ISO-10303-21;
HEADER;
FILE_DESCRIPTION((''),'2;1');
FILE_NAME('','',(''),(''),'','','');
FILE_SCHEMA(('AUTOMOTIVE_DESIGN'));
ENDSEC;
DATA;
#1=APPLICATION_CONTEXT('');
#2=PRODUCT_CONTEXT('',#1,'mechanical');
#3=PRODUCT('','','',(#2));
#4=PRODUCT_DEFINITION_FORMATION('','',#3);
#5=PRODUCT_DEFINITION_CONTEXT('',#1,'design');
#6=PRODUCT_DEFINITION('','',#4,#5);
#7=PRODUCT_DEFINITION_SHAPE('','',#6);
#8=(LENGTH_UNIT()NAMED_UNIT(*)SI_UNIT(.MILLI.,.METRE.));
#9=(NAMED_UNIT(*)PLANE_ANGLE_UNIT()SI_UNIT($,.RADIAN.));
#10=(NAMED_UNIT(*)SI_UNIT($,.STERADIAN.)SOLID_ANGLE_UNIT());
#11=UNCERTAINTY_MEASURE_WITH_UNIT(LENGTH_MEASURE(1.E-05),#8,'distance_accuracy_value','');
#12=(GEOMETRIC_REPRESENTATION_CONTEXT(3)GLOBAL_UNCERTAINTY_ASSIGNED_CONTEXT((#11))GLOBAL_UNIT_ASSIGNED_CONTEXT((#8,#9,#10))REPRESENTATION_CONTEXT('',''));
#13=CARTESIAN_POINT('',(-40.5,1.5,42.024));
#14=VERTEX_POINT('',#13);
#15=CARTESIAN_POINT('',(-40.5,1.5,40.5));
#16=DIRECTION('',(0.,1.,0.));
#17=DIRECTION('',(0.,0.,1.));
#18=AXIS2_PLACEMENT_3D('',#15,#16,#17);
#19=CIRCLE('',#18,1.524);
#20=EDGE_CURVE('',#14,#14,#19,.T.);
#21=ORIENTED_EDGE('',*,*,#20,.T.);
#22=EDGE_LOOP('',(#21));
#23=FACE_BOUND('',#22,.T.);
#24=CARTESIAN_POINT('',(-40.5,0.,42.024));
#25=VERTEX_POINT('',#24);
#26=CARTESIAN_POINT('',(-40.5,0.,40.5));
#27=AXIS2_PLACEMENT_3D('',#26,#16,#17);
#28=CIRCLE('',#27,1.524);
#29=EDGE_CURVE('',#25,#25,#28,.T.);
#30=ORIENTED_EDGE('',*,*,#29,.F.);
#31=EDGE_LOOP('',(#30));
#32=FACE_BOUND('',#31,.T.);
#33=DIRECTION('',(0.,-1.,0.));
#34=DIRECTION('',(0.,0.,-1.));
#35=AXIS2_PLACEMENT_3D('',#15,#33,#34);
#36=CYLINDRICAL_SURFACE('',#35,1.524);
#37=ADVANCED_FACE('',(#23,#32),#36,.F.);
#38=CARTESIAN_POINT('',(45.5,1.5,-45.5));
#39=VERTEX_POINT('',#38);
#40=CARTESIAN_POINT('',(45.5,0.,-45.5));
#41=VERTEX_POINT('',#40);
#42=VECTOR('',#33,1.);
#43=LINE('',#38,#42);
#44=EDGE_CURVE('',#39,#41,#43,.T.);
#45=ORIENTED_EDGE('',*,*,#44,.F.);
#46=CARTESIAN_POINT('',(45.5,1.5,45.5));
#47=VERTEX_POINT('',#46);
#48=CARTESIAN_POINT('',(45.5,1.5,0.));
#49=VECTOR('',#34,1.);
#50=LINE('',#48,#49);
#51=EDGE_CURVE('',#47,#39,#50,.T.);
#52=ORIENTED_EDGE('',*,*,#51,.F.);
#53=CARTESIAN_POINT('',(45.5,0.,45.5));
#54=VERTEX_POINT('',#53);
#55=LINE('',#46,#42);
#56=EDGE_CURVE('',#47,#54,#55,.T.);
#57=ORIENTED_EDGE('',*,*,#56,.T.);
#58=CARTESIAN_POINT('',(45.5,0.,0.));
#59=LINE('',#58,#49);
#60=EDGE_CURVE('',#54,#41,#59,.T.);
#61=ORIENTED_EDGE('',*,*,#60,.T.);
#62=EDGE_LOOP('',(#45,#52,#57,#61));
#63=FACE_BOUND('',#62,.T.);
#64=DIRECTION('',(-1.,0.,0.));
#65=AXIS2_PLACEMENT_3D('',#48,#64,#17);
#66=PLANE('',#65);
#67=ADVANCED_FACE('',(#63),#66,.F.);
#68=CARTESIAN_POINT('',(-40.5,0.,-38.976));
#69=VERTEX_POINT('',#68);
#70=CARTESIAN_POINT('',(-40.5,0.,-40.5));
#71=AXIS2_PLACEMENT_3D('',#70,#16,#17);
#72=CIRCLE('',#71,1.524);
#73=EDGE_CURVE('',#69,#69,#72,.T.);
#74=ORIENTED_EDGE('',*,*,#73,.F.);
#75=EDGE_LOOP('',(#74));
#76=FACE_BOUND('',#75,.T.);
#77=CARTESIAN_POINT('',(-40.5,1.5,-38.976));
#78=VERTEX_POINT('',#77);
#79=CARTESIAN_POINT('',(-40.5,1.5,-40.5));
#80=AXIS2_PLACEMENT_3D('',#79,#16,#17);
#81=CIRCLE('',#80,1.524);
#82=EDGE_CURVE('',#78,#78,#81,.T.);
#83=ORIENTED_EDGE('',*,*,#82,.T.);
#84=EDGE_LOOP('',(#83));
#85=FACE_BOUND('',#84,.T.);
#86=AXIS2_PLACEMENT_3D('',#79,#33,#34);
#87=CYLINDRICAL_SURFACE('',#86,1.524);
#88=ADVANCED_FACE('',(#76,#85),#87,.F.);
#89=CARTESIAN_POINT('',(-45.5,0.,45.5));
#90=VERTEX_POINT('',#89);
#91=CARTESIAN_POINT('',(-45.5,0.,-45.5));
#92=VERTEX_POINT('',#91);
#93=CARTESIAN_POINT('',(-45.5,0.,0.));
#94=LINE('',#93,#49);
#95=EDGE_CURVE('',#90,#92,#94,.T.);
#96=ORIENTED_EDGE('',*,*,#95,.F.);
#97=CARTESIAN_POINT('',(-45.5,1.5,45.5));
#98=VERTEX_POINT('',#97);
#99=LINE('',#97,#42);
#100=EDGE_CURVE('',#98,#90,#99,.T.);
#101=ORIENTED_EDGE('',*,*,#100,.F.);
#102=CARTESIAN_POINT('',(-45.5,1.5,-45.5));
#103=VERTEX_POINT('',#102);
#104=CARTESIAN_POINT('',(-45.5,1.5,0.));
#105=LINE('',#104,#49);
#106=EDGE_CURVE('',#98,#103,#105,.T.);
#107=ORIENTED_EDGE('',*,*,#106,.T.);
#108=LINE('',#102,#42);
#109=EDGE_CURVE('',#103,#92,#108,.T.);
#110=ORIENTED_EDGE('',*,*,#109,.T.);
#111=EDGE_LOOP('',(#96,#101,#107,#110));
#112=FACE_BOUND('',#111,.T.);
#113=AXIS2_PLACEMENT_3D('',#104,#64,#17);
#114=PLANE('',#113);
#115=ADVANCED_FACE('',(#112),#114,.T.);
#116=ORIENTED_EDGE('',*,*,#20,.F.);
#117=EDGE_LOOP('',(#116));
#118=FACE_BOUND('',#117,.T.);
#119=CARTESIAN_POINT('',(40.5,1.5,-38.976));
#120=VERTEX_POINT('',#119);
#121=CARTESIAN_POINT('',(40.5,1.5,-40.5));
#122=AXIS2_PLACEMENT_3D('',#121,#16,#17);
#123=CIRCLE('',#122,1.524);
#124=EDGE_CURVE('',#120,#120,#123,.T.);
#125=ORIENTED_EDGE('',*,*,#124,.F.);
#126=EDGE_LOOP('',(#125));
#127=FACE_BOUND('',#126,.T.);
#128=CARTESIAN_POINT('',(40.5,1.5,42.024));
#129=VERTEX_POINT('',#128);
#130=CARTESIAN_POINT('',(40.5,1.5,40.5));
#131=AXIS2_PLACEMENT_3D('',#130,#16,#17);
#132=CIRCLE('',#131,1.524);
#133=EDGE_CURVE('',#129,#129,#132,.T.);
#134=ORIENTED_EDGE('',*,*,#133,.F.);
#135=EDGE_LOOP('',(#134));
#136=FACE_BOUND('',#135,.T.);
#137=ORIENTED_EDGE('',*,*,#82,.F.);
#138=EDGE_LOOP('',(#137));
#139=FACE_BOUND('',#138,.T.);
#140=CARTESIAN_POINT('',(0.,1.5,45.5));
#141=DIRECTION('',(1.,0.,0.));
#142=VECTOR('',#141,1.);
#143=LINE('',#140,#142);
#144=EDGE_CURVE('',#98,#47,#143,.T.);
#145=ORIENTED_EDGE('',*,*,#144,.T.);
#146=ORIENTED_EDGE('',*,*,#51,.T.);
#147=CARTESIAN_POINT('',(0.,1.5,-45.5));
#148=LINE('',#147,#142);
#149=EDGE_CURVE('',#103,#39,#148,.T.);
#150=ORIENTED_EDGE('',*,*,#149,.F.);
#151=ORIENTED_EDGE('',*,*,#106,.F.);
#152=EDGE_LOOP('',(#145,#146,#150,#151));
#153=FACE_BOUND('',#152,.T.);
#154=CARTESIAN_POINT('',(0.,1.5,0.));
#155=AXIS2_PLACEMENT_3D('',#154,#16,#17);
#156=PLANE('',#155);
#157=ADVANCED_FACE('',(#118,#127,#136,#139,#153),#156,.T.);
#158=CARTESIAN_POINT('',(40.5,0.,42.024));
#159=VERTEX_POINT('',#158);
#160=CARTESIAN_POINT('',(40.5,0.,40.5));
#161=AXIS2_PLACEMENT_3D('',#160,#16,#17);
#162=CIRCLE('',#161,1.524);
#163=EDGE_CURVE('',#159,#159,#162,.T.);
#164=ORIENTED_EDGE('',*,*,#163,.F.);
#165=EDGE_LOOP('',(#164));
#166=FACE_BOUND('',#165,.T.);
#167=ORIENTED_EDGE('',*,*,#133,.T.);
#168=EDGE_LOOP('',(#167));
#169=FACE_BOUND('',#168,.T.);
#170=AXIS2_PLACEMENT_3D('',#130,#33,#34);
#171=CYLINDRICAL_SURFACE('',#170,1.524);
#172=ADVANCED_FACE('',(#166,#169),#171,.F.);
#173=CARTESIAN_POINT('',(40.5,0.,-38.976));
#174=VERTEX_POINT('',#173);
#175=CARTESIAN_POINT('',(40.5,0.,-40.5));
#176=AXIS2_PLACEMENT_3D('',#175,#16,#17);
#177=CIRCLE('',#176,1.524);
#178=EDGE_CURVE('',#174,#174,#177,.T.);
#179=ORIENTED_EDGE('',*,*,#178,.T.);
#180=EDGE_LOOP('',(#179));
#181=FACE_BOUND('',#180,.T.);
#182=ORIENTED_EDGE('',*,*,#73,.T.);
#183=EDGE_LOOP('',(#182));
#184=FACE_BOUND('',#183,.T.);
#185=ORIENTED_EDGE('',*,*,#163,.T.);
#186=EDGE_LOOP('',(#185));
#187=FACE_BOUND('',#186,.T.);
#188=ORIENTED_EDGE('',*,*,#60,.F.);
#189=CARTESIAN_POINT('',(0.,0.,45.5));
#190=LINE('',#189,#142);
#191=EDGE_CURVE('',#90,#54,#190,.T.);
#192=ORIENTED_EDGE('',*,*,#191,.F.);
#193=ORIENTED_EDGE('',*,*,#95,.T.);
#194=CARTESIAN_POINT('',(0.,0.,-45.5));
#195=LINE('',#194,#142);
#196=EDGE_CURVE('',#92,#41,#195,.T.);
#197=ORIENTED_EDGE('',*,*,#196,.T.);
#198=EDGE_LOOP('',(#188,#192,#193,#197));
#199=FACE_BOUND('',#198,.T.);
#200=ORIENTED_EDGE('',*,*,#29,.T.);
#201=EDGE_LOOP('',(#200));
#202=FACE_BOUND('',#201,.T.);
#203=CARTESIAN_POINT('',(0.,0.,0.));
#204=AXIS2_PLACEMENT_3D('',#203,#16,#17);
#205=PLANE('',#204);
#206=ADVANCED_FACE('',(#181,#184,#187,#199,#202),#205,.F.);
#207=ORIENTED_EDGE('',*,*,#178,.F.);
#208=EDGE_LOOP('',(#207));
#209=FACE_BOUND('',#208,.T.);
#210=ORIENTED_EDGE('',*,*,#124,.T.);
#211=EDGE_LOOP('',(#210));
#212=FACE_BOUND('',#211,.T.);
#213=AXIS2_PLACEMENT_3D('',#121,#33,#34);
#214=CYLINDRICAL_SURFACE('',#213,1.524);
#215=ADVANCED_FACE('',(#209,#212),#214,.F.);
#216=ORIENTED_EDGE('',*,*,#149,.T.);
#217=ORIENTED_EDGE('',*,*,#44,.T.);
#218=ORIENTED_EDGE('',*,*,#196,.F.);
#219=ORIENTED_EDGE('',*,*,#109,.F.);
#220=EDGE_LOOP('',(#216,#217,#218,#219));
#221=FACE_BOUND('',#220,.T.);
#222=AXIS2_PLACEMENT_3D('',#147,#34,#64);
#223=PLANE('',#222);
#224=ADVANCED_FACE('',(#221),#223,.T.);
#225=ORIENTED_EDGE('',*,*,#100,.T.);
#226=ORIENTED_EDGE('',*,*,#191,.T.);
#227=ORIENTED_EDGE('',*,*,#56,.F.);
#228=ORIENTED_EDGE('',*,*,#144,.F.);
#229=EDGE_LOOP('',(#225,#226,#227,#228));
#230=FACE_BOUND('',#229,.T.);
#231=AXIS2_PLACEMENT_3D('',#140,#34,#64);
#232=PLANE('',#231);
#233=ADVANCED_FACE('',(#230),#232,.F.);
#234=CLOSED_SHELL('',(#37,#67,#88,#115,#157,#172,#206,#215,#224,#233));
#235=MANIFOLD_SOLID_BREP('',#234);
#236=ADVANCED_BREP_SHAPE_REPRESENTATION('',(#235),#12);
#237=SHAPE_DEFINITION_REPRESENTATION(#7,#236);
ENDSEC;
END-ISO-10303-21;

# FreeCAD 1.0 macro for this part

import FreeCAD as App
import Part
import Sketcher
Q = App.Units.Quantity

doc = App.newDocument("Part")
body = doc.addObject("PartDesign::Body", "Body")

# Sketch on XZ plane
sketch1 = body.newObject("Sketcher::SketchObject", "Sketch")
sketch1.AttachmentSupport = (doc.getObject("XZ_Plane"), [""])
sketch1.MapMode = "FlatFace"
sketch1.addGeometry(Part.LineSegment(App.Vector(-45.5, -45.5, 0), App.Vector(-45.5, 45.5, 0)), False)
sketch1.addGeometry(Part.LineSegment(App.Vector(-45.5, 45.5, 0), App.Vector(45.5, 45.5, 0)), False)
sketch1.addGeometry(Part.LineSegment(App.Vector(45.5, 45.5, 0), App.Vector(45.5, -45.5, 0)), False)
sketch1.addGeometry(Part.LineSegment(App.Vector(45.5, -45.5, 0), App.Vector(-45.5, -45.5, 0)), False)
sketch1.addGeometry(Part.Circle(App.Vector(-40.5, 40.5, 0), App.Vector(0, 0, 1), 1.5), False)
sketch1.addGeometry(Part.Circle(App.Vector(40.5, 40.5, 0), App.Vector(0, 0, 1), 1.5), False)
sketch1.addGeometry(Part.Circle(App.Vector(-40.5, -40.5, 0), App.Vector(0, 0, 1), 1.5), False)
sketch1.addGeometry(Part.Circle(App.Vector(40.5, -40.5, 0), App.Vector(0, 0, 1), 1.5), False)
sketch1.addConstraint(Sketcher.Constraint("Coincident", 0, 2, 1, 1))
sketch1.addConstraint(Sketcher.Constraint("Coincident", 1, 2, 2, 1))
sketch1.addConstraint(Sketcher.Constraint("Coincident", 2, 2, 3, 1))
sketch1.addConstraint(Sketcher.Constraint("Coincident", 3, 2, 0, 1))
sketch1.addConstraint(Sketcher.Constraint("Vertical", 0))
sketch1.addConstraint(Sketcher.Constraint("Horizontal", 1))
sketch1.addConstraint(Sketcher.Constraint("Vertical", 2))
sketch1.addConstraint(Sketcher.Constraint("Horizontal", 3))
sketch1.addConstraint(Sketcher.Constraint("Equal", 4, 5))
sketch1.addConstraint(Sketcher.Constraint("Equal", 5, 6))
sketch1.addConstraint(Sketcher.Constraint("Equal", 6, 7))
sketch1.addConstraint(Sketcher.Constraint("Symmetric", 5, 3, 6, 3, -1, 1))
sketch1.addConstraint(Sketcher.Constraint("Symmetric", 4, 3, 7, 3, -1, 1))
sketch1.addConstraint(Sketcher.Constraint("Symmetric", 0, 2, 2, 2, -1, 1))
sketch1.addConstraint(Sketcher.Constraint("Symmetric", 4, 3, 5, 3, -2))
sketch1.addConstraint(Sketcher.Constraint("Equal", 3, 0))
sketch1.addConstraint(Sketcher.Constraint("DistanceX", 1, 1, 1, 2, Q("91 mm")))
sketch1.addConstraint(Sketcher.Constraint("Diameter", 4, Q("3.048 mm")))
sketch1.addConstraint(Sketcher.Constraint("DistanceX", 4, 3, 5, 3, Q("81 mm")))
sketch1.addConstraint(Sketcher.Constraint("DistanceY", 6, 3, 4, 3, Q("81 mm")))
pad1 = body.newObject("PartDesign::Pad", "Pad")
pad1.Profile = sketch1
pad1.Length = 1.5
pad1.Reversed = True

doc.recompute()
